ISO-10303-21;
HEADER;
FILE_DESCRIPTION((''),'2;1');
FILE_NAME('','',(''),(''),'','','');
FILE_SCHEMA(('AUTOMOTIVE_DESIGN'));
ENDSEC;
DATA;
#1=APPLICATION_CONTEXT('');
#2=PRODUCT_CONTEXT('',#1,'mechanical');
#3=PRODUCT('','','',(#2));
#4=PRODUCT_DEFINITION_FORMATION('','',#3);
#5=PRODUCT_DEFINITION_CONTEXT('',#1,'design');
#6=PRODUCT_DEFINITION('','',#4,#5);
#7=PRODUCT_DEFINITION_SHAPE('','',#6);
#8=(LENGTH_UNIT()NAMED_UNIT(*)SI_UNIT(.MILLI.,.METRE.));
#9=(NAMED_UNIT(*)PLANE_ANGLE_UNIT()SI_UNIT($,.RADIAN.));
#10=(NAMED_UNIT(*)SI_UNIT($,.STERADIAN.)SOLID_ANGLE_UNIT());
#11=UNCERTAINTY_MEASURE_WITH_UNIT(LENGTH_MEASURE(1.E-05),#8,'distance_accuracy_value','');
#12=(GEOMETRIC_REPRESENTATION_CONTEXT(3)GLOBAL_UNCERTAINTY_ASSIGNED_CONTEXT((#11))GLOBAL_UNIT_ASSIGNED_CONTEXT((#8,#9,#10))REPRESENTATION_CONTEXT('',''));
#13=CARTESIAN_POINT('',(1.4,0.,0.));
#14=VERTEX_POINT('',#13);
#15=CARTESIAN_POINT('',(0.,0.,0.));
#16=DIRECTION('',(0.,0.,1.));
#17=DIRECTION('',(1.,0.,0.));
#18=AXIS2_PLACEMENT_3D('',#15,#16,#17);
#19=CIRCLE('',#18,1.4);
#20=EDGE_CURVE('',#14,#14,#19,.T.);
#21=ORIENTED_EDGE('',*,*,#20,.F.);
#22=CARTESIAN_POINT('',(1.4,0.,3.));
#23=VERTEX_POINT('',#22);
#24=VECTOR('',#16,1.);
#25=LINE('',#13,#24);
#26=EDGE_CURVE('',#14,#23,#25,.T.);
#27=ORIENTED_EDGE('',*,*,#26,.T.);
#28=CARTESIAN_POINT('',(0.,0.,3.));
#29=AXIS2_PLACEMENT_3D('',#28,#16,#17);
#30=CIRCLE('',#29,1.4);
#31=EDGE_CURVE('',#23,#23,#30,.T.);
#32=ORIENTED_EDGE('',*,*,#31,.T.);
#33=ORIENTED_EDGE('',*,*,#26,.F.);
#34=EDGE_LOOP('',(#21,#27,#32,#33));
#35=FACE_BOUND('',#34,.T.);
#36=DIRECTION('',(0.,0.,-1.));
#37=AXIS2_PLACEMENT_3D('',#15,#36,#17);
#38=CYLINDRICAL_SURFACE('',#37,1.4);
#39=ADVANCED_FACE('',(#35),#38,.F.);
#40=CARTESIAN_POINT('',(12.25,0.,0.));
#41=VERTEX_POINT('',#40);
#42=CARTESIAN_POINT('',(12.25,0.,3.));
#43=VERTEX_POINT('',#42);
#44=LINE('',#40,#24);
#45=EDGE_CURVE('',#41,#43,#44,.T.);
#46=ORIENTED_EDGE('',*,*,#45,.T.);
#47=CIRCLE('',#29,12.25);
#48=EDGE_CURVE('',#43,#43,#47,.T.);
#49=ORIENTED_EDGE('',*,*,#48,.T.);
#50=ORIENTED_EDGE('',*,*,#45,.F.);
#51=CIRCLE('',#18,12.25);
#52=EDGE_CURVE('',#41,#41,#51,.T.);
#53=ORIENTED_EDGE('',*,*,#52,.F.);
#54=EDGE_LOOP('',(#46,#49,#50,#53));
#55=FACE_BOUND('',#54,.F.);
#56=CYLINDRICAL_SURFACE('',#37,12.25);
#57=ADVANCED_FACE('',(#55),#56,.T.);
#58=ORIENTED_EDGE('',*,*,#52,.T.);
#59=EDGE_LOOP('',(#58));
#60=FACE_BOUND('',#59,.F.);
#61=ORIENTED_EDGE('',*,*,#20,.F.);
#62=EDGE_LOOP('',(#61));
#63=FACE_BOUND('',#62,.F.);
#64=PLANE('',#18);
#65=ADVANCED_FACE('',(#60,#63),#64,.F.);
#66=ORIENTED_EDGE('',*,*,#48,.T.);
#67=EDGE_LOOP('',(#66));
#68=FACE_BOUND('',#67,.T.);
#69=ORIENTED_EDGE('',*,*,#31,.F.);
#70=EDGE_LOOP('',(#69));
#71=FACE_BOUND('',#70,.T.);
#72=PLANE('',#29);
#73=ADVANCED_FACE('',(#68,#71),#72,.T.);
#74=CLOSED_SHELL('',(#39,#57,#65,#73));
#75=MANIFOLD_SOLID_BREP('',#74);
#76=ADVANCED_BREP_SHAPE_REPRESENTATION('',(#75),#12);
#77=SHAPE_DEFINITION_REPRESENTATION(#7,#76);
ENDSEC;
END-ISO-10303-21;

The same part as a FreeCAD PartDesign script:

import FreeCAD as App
import Part
import Sketcher
Q = App.Units.Quantity

doc = App.newDocument("Part")
body = doc.addObject("PartDesign::Body", "Body")

# Sketch on XY plane
sketch1 = body.newObject("Sketcher::SketchObject", "Sketch")
sketch1.AttachmentSupport = (doc.getObject("XY_Plane"), [""])
sketch1.MapMode = "FlatFace"
sketch1.addGeometry([
    Part.Circle(App.Vector(0, 0, 0), App.Vector(0, 0, 1), 12.25),
    Part.Circle(App.Vector(0, 0, 0), App.Vector(0, 0, 1), 1.4),
], False)
sketch1.addConstraint([
    Sketcher.Constraint("Coincident", 0, 3, -1, 1),
    Sketcher.Constraint("Coincident", 1, 3, -1, 1),
    Sketcher.Constraint("Diameter", 0, Q("24.5 mm")),
    Sketcher.Constraint("Diameter", 1, Q("2.8 mm")),
])
pad1 = body.newObject("PartDesign::Pad", "Pad")
pad1.Profile = sketch1
pad1.Length = 3

doc.recompute()
